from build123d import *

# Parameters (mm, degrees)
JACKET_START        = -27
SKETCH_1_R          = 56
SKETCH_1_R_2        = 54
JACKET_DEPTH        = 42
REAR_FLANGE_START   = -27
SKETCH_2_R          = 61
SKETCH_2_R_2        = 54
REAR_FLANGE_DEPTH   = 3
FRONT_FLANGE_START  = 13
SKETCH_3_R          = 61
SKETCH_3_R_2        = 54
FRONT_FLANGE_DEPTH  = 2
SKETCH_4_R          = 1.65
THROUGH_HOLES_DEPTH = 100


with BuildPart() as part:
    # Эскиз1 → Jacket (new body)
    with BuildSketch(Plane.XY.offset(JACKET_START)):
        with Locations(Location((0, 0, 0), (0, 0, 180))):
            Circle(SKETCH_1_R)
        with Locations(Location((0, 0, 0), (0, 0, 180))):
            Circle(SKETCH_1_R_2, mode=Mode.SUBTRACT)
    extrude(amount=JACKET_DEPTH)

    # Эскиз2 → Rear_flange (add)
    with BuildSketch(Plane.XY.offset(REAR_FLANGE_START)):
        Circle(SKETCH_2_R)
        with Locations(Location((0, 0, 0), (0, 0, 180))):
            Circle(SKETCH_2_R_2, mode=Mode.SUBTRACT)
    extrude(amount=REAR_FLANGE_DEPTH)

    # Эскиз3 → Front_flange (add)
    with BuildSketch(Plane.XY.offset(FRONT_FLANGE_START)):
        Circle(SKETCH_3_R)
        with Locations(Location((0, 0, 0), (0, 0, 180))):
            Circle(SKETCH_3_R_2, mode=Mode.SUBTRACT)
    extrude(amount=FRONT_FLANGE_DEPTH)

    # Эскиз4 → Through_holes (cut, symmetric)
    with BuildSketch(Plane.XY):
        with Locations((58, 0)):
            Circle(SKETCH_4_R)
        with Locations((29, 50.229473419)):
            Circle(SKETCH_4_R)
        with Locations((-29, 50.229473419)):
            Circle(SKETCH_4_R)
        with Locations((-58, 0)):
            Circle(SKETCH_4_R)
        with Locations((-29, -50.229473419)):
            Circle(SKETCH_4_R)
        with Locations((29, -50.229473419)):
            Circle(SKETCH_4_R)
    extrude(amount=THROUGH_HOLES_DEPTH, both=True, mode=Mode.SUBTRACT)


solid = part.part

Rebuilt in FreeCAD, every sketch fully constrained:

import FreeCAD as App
import Part
import Sketcher
from FreeCAD import Vector
Q = App.Units.Quantity

doc = App.newDocument("Part")
params = doc.addObject("Spreadsheet::Sheet", "Params")
for row, (alias, value) in enumerate([
    ("sketch1_diameter", "112 mm"),
    ("sketch1_diameter2", "108 mm"),
    ("pad1_length", "42 mm"),
    ("sketch2_diameter", "122 mm"),
    ("sketch2_diameter2", "108 mm"),
    ("pad2_length", "3 mm"),
    ("sketch3_diameter", "122 mm"),
    ("sketch3_diameter2", "108 mm"),
    ("pad3_length", "2 mm"),
    ("sketch4_diameter", "3.3 mm"),
    ("pocket1_length", "200 mm"),
], start=1):
    params.set(f"A{row}", alias)
    params.set(f"B{row}", "=" + value)
    params.setAlias(f"B{row}", alias)

body = doc.addObject("PartDesign::Body", "Body")

# Sketch on XY plane
sketch1 = body.newObject("Sketcher::SketchObject", "Sketch")
sketch1.AttachmentSupport = (doc.getObject("XY_Plane"), [""])
sketch1.MapMode = "FlatFace"
sketch1.AttachmentOffset = App.Placement(Vector(0, 0, -27), App.Rotation())
sketch1.addGeometry([
    Part.Circle(Vector(0, 0, 0), Vector(0, 0, 1), 56),
    Part.Circle(Vector(0, 0, 0), Vector(0, 0, 1), 54),
], False)
sketch1.addConstraint([
    Sketcher.Constraint("Coincident", 0, 3, -1, 1),
    Sketcher.Constraint("Coincident", 1, 3, -1, 1),
    Sketcher.Constraint("Diameter", 0, Q("112 mm")),
    Sketcher.Constraint("Diameter", 1, Q("108 mm")),
])
sketch1.setExpression("Constraints[2]", "Params.sketch1_diameter")
sketch1.setExpression("Constraints[3]", "Params.sketch1_diameter2")
pad1 = body.newObject("PartDesign::Pad", "Pad")
pad1.Profile = sketch1
pad1.setExpression("Length", "Params.pad1_length")

# Sketch on XY plane
sketch2 = body.newObject("Sketcher::SketchObject", "Sketch001")
sketch2.AttachmentSupport = (doc.getObject("XY_Plane"), [""])
sketch2.MapMode = "FlatFace"
sketch2.AttachmentOffset = App.Placement(Vector(0, 0, -27), App.Rotation())
sketch2.addGeometry([
    Part.Circle(Vector(0, 0, 0), Vector(0, 0, 1), 61),
    Part.Circle(Vector(0, 0, 0), Vector(0, 0, 1), 54),
], False)
sketch2.addConstraint([
    Sketcher.Constraint("Coincident", 0, 3, -1, 1),
    Sketcher.Constraint("Coincident", 1, 3, -1, 1),
    Sketcher.Constraint("Diameter", 0, Q("122 mm")),
    Sketcher.Constraint("Diameter", 1, Q("108 mm")),
])
sketch2.setExpression("Constraints[2]", "Params.sketch2_diameter")
sketch2.setExpression("Constraints[3]", "Params.sketch2_diameter2")
pad2 = body.newObject("PartDesign::Pad", "Pad001")
pad2.Profile = sketch2
pad2.setExpression("Length", "Params.pad2_length")

# Sketch on XY plane
sketch3 = body.newObject("Sketcher::SketchObject", "Sketch002")
sketch3.AttachmentSupport = (doc.getObject("XY_Plane"), [""])
sketch3.MapMode = "FlatFace"
sketch3.AttachmentOffset = App.Placement(Vector(0, 0, 13), App.Rotation())
sketch3.addGeometry([
    Part.Circle(Vector(0, 0, 0), Vector(0, 0, 1), 61),
    Part.Circle(Vector(0, 0, 0), Vector(0, 0, 1), 54),
], False)
sketch3.addConstraint([
    Sketcher.Constraint("Coincident", 0, 3, -1, 1),
    Sketcher.Constraint("Coincident", 1, 3, -1, 1),
    Sketcher.Constraint("Diameter", 0, Q("122 mm")),
    Sketcher.Constraint("Diameter", 1, Q("108 mm")),
])
sketch3.setExpression("Constraints[2]", "Params.sketch3_diameter")
sketch3.setExpression("Constraints[3]", "Params.sketch3_diameter2")
pad3 = body.newObject("PartDesign::Pad", "Pad002")
pad3.Profile = sketch3
pad3.setExpression("Length", "Params.pad3_length")

# Sketch on XY plane
sketch4 = body.newObject("Sketcher::SketchObject", "Sketch003")
sketch4.AttachmentSupport = (doc.getObject("XY_Plane"), [""])
sketch4.MapMode = "FlatFace"
sketch4.addGeometry([
    Part.Circle(Vector(58, 0, 0), Vector(0, 0, 1), 1.65),  # 0
    Part.Circle(Vector(29, 50.229473, 0), Vector(0, 0, 1), 1.65),  # 1
    Part.Circle(Vector(-29, 50.229473, 0), Vector(0, 0, 1), 1.65),  # 2
    Part.Circle(Vector(-58, 0, 0), Vector(0, 0, 1), 1.65),  # 3
    Part.Circle(Vector(-29, -50.229473, 0), Vector(0, 0, 1), 1.65),  # 4
    Part.Circle(Vector(29, -50.229473, 0), Vector(0, 0, 1), 1.65),  # 5
], False)
sketch4.addConstraint([
    Sketcher.Constraint("Equal", 0, 1),
    Sketcher.Constraint("Equal", 1, 2),
    Sketcher.Constraint("Equal", 2, 3),
    Sketcher.Constraint("Equal", 3, 4),
    Sketcher.Constraint("Equal", 4, 5),
    Sketcher.Constraint("Symmetric", 0, 3, 3, 3, -1, 1),
    Sketcher.Constraint("Symmetric", 1, 3, 4, 3, -1, 1),
    Sketcher.Constraint("Symmetric", 2, 3, 5, 3, -1, 1),
    Sketcher.Constraint("Symmetric", 1, 3, 2, 3, -2),
    Sketcher.Constraint("PointOnObject", 0, 3, -1),
    Sketcher.Constraint("Diameter", 0, Q("3.3 mm")),
    Sketcher.Constraint("DistanceX", -1, 1, 0, 3, Q("58 mm")),
    Sketcher.Constraint("DistanceX", -1, 1, 1, 3, Q("29 mm")),
    Sketcher.Constraint("DistanceY", -1, 1, 1, 3, Q("50.229473 mm")),
])
sketch4.setExpression("Constraints[10]", "Params.sketch4_diameter")
pocket1 = body.newObject("PartDesign::Pocket", "Pocket")
pocket1.Profile = sketch4
pocket1.setExpression("Length", "Params.pocket1_length")
pocket1.Midplane = True

doc.recompute()
